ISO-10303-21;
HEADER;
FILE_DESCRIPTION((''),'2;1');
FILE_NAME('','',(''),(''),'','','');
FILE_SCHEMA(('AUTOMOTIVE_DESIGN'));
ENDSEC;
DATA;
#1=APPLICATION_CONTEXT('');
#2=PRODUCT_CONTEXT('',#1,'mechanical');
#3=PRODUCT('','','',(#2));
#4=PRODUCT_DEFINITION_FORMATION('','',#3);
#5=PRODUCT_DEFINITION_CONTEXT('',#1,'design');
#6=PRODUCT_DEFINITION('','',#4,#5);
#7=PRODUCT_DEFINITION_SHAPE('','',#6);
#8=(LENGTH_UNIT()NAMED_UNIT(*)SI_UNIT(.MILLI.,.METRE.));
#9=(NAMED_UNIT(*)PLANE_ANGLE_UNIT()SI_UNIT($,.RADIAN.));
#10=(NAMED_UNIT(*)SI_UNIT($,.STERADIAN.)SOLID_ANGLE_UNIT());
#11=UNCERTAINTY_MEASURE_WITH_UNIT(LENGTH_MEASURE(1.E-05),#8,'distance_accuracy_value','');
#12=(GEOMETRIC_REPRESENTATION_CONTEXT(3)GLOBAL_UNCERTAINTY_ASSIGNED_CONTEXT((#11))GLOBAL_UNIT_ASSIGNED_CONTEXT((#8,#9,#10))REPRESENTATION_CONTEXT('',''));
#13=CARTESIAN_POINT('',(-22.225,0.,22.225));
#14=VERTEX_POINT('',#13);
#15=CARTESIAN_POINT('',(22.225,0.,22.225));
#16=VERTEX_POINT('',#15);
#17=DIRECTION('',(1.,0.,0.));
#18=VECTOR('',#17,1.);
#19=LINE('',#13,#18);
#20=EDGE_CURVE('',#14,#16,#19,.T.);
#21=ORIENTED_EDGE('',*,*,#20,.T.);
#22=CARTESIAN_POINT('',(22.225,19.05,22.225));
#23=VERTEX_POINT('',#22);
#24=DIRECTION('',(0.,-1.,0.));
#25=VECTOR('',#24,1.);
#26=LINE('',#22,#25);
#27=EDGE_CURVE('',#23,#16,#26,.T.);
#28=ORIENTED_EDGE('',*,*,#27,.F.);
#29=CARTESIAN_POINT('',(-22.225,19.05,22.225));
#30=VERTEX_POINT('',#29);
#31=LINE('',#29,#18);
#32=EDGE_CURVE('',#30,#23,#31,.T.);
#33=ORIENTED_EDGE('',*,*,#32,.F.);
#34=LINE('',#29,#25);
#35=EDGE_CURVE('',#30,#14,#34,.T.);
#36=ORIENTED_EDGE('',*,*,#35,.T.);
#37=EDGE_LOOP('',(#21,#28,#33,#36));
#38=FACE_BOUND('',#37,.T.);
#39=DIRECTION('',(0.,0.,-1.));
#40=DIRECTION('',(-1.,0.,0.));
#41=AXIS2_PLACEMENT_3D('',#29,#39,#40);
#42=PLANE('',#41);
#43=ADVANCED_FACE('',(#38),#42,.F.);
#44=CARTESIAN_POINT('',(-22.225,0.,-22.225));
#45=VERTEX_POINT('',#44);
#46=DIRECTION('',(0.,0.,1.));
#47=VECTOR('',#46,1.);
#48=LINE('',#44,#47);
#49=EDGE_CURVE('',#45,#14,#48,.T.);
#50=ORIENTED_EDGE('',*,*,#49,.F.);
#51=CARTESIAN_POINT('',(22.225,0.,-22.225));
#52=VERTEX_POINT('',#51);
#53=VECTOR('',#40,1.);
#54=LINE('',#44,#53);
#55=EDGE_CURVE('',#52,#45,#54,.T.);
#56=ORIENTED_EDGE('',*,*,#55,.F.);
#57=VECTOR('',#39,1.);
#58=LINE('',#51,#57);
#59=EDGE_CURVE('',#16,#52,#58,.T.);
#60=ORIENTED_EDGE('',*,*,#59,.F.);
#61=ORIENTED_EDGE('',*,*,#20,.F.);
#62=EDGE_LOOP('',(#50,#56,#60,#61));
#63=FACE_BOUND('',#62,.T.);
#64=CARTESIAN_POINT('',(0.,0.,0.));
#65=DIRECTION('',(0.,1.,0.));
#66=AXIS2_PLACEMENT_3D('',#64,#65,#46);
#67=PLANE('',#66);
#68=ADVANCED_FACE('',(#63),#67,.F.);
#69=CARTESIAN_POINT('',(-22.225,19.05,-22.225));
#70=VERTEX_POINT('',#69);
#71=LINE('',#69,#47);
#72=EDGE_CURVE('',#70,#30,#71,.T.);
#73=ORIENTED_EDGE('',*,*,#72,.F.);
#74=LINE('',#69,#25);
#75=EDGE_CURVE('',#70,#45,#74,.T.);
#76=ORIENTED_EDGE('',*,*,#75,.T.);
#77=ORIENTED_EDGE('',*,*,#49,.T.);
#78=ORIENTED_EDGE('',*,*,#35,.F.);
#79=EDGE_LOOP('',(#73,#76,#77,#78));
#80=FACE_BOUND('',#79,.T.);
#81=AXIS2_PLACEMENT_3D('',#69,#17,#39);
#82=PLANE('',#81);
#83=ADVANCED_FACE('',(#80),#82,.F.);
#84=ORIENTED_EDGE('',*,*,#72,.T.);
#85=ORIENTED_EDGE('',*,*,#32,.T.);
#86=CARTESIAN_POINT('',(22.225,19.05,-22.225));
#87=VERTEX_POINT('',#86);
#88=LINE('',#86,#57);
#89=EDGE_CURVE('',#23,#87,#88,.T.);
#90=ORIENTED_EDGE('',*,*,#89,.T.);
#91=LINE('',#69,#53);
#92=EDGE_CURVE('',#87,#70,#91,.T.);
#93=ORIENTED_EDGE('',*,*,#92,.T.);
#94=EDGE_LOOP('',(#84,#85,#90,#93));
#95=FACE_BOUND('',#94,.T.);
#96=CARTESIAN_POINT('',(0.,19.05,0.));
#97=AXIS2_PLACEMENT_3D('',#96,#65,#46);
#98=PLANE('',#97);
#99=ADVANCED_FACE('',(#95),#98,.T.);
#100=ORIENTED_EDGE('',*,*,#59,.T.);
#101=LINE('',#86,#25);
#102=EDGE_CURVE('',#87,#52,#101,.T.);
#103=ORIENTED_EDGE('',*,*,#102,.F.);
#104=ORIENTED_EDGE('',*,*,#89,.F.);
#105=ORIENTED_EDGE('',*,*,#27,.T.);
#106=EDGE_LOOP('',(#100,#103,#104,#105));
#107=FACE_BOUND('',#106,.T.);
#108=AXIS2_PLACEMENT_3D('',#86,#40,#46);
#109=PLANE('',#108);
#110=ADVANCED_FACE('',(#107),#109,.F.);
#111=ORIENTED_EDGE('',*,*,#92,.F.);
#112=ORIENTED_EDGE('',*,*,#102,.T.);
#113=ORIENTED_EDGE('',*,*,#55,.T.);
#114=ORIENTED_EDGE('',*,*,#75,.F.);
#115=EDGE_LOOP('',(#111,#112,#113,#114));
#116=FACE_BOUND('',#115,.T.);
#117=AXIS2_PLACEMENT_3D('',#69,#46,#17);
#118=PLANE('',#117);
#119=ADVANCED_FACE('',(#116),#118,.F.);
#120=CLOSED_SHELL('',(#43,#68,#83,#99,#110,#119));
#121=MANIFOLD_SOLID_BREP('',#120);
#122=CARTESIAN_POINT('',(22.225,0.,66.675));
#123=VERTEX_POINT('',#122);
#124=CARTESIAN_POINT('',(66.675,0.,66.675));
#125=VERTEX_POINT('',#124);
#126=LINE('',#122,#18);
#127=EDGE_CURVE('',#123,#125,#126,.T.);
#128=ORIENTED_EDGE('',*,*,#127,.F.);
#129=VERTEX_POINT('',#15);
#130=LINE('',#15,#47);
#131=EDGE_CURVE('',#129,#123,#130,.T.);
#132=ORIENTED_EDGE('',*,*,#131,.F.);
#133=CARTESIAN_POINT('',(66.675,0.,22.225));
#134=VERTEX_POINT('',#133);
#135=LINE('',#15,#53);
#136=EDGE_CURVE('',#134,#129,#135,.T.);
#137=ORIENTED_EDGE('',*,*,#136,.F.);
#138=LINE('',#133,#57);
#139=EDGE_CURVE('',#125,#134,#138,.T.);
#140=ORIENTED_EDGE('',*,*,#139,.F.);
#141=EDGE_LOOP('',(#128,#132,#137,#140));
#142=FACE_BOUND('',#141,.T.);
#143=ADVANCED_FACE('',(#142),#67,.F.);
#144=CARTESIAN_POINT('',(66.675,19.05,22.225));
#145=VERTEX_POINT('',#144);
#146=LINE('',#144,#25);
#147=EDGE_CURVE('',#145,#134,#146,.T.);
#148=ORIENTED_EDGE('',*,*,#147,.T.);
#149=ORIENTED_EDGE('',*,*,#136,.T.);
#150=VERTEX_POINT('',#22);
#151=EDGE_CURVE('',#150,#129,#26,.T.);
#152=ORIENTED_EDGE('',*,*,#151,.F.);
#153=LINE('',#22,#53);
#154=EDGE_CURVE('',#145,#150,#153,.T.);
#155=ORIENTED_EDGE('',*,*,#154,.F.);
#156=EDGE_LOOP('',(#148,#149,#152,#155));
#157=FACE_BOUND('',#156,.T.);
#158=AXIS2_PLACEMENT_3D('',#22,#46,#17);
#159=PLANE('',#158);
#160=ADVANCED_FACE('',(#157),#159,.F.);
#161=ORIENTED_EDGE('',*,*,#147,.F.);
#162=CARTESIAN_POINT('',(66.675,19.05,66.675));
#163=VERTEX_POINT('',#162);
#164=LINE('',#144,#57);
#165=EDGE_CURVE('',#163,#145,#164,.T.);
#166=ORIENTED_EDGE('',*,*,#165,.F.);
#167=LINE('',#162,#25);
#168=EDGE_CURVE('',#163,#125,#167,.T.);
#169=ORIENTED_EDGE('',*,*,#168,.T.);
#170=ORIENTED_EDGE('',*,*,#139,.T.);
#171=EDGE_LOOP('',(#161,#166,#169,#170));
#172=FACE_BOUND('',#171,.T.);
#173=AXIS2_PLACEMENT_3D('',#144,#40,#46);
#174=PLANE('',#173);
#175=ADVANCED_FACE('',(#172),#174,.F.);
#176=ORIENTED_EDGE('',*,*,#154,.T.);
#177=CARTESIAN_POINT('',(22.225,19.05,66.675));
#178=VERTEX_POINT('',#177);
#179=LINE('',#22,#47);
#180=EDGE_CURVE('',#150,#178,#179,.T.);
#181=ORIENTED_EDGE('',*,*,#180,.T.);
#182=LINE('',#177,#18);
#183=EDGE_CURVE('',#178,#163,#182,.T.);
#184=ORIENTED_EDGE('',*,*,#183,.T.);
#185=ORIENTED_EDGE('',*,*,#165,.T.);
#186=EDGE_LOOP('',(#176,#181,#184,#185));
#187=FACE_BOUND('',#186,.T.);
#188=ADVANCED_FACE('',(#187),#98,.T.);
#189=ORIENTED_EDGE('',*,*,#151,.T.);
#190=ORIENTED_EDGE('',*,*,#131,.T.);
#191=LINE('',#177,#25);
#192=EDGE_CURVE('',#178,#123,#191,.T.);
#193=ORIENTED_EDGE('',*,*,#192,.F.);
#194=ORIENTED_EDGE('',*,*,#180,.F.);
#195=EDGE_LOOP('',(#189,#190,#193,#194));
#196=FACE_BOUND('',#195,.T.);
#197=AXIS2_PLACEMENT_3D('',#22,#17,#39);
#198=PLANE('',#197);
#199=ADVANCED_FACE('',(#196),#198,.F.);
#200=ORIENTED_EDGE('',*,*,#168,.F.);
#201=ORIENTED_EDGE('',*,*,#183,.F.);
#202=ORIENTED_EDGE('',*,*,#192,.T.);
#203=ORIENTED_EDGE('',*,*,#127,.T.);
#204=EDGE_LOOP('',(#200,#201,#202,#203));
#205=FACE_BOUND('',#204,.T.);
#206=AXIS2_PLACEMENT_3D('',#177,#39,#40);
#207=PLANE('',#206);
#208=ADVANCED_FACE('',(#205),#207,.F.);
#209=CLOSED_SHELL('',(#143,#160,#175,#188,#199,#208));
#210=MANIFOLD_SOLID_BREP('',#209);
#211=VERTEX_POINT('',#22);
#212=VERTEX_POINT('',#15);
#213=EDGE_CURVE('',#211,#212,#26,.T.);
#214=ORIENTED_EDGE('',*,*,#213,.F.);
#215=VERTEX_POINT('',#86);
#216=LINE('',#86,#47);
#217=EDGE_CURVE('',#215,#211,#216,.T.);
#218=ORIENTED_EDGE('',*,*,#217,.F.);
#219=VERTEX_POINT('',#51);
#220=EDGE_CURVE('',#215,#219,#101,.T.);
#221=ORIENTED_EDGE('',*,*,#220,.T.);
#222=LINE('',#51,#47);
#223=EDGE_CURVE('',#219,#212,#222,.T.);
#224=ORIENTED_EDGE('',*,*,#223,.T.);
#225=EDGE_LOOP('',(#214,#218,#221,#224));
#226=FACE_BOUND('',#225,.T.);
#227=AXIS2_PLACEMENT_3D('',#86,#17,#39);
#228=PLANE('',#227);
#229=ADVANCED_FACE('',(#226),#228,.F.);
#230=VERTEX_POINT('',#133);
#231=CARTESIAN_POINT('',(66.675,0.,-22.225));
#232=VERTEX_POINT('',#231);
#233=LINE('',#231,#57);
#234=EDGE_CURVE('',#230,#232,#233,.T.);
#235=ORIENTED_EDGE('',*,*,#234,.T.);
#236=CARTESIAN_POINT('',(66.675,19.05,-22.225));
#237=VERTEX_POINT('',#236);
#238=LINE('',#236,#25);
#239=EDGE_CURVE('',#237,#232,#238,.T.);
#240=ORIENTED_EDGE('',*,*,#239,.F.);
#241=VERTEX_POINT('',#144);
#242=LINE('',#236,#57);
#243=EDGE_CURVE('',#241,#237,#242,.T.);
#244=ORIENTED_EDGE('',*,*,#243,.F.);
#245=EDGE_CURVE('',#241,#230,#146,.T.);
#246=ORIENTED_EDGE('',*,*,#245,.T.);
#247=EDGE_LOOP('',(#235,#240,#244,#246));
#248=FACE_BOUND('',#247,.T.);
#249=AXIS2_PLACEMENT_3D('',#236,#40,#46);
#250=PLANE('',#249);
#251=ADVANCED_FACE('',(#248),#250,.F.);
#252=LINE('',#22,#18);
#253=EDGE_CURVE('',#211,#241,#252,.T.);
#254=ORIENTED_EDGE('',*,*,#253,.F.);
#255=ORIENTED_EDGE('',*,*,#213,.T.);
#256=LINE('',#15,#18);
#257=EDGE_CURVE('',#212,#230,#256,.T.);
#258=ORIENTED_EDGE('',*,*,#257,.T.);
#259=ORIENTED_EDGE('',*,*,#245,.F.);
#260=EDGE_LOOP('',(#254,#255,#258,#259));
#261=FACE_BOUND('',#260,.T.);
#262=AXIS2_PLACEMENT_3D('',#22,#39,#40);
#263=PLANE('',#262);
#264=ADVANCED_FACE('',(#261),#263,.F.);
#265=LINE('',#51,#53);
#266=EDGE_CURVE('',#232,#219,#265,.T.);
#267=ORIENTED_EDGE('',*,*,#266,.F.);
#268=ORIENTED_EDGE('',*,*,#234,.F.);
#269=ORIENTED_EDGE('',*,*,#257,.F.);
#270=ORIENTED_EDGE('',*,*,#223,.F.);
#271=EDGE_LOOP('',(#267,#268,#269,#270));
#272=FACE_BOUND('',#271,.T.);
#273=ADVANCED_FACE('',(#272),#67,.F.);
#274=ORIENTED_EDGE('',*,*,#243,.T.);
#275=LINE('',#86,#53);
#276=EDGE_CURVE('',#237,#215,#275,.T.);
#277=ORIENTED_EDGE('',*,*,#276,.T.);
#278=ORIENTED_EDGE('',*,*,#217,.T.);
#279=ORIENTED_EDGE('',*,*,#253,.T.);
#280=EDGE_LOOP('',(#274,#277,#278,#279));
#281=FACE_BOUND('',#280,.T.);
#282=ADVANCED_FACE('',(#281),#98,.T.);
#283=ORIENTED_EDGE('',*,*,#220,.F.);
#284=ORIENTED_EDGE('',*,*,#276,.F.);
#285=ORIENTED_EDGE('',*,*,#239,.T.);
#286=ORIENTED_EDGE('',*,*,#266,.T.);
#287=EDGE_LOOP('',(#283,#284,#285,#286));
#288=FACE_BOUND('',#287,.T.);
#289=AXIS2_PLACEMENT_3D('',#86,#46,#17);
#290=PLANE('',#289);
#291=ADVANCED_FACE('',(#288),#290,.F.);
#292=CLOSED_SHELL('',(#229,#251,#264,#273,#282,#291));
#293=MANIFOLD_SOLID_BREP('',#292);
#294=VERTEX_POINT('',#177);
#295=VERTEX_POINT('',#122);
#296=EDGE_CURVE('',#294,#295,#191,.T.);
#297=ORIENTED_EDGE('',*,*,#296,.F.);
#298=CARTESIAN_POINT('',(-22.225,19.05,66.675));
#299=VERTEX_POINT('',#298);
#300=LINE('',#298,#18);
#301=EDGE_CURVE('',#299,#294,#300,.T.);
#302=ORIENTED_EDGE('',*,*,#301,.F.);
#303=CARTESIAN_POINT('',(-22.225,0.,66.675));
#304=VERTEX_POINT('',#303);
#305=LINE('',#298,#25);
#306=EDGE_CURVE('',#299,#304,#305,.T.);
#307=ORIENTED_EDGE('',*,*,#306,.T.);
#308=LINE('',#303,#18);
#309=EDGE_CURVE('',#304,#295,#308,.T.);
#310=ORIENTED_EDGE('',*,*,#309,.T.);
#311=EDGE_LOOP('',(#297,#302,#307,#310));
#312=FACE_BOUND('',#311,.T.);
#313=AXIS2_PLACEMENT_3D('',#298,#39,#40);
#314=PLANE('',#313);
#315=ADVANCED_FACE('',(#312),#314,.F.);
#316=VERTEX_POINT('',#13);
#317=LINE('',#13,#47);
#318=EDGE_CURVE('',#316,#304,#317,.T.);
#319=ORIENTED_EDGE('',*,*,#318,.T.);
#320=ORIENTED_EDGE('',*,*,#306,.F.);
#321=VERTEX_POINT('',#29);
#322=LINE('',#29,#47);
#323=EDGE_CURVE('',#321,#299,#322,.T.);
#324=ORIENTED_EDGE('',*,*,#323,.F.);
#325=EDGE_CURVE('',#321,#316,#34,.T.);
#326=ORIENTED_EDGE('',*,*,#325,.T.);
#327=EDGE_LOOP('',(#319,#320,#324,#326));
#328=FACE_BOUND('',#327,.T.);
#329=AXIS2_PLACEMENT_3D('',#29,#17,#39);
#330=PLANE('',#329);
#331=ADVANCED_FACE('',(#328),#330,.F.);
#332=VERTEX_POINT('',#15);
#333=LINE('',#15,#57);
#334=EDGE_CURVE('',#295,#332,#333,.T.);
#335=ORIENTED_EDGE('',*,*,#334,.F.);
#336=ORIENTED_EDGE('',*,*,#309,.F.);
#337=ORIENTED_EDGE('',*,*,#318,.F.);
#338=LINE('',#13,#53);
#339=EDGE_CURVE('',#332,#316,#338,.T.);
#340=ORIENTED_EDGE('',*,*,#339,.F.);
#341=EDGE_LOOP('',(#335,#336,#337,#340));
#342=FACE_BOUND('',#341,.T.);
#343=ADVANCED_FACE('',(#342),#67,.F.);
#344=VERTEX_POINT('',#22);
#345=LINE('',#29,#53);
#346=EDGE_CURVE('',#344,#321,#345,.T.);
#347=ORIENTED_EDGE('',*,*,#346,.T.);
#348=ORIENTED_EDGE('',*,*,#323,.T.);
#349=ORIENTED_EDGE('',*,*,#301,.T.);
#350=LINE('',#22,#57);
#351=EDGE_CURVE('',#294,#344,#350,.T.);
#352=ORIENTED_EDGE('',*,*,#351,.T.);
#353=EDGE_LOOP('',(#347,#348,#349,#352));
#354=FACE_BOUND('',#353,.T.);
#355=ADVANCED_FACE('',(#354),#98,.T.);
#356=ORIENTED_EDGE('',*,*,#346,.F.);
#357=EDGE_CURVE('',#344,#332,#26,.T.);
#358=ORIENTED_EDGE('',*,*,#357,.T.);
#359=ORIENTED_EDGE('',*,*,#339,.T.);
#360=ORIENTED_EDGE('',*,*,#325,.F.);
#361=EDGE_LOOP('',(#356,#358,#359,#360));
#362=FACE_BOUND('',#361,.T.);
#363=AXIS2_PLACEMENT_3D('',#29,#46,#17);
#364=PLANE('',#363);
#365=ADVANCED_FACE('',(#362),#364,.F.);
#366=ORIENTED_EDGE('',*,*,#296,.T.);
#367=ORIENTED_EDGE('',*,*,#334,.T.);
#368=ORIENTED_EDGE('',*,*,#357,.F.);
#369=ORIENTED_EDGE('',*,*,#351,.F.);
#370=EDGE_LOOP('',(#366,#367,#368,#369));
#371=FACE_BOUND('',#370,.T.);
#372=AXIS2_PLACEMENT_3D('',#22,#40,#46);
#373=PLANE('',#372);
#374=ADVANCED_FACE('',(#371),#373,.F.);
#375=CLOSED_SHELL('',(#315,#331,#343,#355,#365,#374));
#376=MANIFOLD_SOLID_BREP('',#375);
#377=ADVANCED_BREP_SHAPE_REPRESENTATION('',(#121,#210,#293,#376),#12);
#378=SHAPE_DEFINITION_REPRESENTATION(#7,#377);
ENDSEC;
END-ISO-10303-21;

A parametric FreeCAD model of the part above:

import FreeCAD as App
import Part
import Sketcher
Q = App.Units.Quantity

doc = App.newDocument("Part")
body = doc.addObject("PartDesign::Body", "Body")

sketch1 = body.newObject("Sketcher::SketchObject", "Sketch")
sketch1.AttachmentSupport = (doc.getObject("XZ_Plane"), [""])
sketch1.MapMode = "FlatFace"
sketch1.addGeometry([
    Part.LineSegment(App.Vector(-22, -22, 0), App.Vector(-22, 22, 0)),
    Part.LineSegment(App.Vector(-22, 22, 0), App.Vector(22, 22, 0)),
    Part.LineSegment(App.Vector(22, 22, 0), App.Vector(22, -22, 0)),
    Part.LineSegment(App.Vector(22, -22, 0), App.Vector(-22, -22, 0)),
], False)
sketch1.addConstraint([
    Sketcher.Constraint("Coincident", 0, 2, 1, 1),
    Sketcher.Constraint("Coincident", 1, 2, 2, 1),
    Sketcher.Constraint("Coincident", 2, 2, 3, 1),
    Sketcher.Constraint("Coincident", 3, 2, 0, 1),
    Sketcher.Constraint("Vertical", 0),
    Sketcher.Constraint("Horizontal", 1),
    Sketcher.Constraint("Vertical", 2),
    Sketcher.Constraint("Horizontal", 3),
    Sketcher.Constraint("Symmetric", 0, 2, 2, 2, -1, 1),
    Sketcher.Constraint("Equal", 3, 0),
    Sketcher.Constraint("DistanceX", 1, 1, 1, 2, Q("1.75 in")),
])
pad1 = body.newObject("PartDesign::Pad", "Pad")
pad1.Profile = sketch1
pad1.Length = Q("0.75 in")
pad1.Reversed = True
body2 = doc.addObject("PartDesign::Body", "Body001")

sketch2 = body2.newObject("Sketcher::SketchObject", "Sketch001")
sketch2.AttachmentSupport = (doc.getObject("XZ_Plane001"), [""])
sketch2.MapMode = "FlatFace"
sketch2.addGeometry([
    Part.LineSegment(App.Vector(22, -22, 0), App.Vector(22, 22, 0)),
    Part.LineSegment(App.Vector(22, 22, 0), App.Vector(67, 22, 0)),
    Part.LineSegment(App.Vector(67, 22, 0), App.Vector(67, -22, 0)),
    Part.LineSegment(App.Vector(67, -22, 0), App.Vector(22, -22, 0)),
], False)
sketch2.addConstraint([
    Sketcher.Constraint("Coincident", 0, 2, 1, 1),
    Sketcher.Constraint("Coincident", 1, 2, 2, 1),
    Sketcher.Constraint("Coincident", 2, 2, 3, 1),
    Sketcher.Constraint("Coincident", 3, 2, 0, 1),
    Sketcher.Constraint("Vertical", 0),
    Sketcher.Constraint("Horizontal", 1),
    Sketcher.Constraint("Vertical", 2),
    Sketcher.Constraint("Horizontal", 3),
    Sketcher.Constraint("Equal", 3, 0),
    Sketcher.Constraint("DistanceX", 1, 1, 1, 2, Q("1.75 in")),
    Sketcher.Constraint("DistanceX", -1, 1, 0, 2, Q("0.875 in")),
    Sketcher.Constraint("DistanceY", -1, 1, 0, 2, Q("0.875 in")),
])
pad2 = body2.newObject("PartDesign::Pad", "Pad001")
pad2.Profile = sketch2
pad2.Length = Q("0.75 in")
pad2.Reversed = True
body3 = doc.addObject("PartDesign::Body", "Body002")

sketch3 = body3.newObject("Sketcher::SketchObject", "Sketch002")
sketch3.AttachmentSupport = (doc.getObject("XZ_Plane002"), [""])
sketch3.MapMode = "FlatFace"
sketch3.addGeometry([
    Part.LineSegment(App.Vector(-22, 22, 0), App.Vector(-22, 67, 0)),
    Part.LineSegment(App.Vector(-22, 67, 0), App.Vector(22, 67, 0)),
    Part.LineSegment(App.Vector(22, 67, 0), App.Vector(22, 22, 0)),
    Part.LineSegment(App.Vector(22, 22, 0), App.Vector(-22, 22, 0)),
], False)
sketch3.addConstraint([
    Sketcher.Constraint("Coincident", 0, 2, 1, 1),
    Sketcher.Constraint("Coincident", 1, 2, 2, 1),
    Sketcher.Constraint("Coincident", 2, 2, 3, 1),
    Sketcher.Constraint("Coincident", 3, 2, 0, 1),
    Sketcher.Constraint("Vertical", 0),
    Sketcher.Constraint("Horizontal", 1),
    Sketcher.Constraint("Vertical", 2),
    Sketcher.Constraint("Horizontal", 3),
    Sketcher.Constraint("Equal", 3, 0),
    Sketcher.Constraint("DistanceX", 1, 1, 1, 2, Q("1.75 in")),
    Sketcher.Constraint("DistanceX", 0, 2, -1, 1, Q("0.875 in")),
    Sketcher.Constraint("DistanceY", -1, 1, 0, 2, Q("2.625 in")),
])
pad3 = body3.newObject("PartDesign::Pad", "Pad002")
pad3.Profile = sketch3
pad3.Length = Q("0.75 in")
pad3.Reversed = True
body4 = doc.addObject("PartDesign::Body", "Body003")

sketch4 = body4.newObject("Sketcher::SketchObject", "Sketch003")
sketch4.AttachmentSupport = (doc.getObject("XZ_Plane003"), [""])
sketch4.MapMode = "FlatFace"
sketch4.addGeometry([
    Part.LineSegment(App.Vector(22, 22, 0), App.Vector(22, 67, 0)),
    Part.LineSegment(App.Vector(22, 67, 0), App.Vector(67, 67, 0)),
    Part.LineSegment(App.Vector(67, 67, 0), App.Vector(67, 22, 0)),
    Part.LineSegment(App.Vector(67, 22, 0), App.Vector(22, 22, 0)),
], False)
sketch4.addConstraint([
    Sketcher.Constraint("Coincident", 0, 2, 1, 1),
    Sketcher.Constraint("Coincident", 1, 2, 2, 1),
    Sketcher.Constraint("Coincident", 2, 2, 3, 1),
    Sketcher.Constraint("Coincident", 3, 2, 0, 1),
    Sketcher.Constraint("Vertical", 0),
    Sketcher.Constraint("Horizontal", 1),
    Sketcher.Constraint("Vertical", 2),
    Sketcher.Constraint("Horizontal", 3),
    Sketcher.Constraint("Equal", 3, 0),
    Sketcher.Constraint("DistanceX", 1, 1, 1, 2, Q("1.75 in")),
    Sketcher.Constraint("DistanceX", -1, 1, 0, 2, Q("0.875 in")),
    Sketcher.Constraint("DistanceY", -1, 1, 0, 2, Q("2.625 in")),
])
pad4 = body4.newObject("PartDesign::Pad", "Pad003")
pad4.Profile = sketch4
pad4.Length = Q("0.75 in")
pad4.Reversed = True

doc.recompute()
